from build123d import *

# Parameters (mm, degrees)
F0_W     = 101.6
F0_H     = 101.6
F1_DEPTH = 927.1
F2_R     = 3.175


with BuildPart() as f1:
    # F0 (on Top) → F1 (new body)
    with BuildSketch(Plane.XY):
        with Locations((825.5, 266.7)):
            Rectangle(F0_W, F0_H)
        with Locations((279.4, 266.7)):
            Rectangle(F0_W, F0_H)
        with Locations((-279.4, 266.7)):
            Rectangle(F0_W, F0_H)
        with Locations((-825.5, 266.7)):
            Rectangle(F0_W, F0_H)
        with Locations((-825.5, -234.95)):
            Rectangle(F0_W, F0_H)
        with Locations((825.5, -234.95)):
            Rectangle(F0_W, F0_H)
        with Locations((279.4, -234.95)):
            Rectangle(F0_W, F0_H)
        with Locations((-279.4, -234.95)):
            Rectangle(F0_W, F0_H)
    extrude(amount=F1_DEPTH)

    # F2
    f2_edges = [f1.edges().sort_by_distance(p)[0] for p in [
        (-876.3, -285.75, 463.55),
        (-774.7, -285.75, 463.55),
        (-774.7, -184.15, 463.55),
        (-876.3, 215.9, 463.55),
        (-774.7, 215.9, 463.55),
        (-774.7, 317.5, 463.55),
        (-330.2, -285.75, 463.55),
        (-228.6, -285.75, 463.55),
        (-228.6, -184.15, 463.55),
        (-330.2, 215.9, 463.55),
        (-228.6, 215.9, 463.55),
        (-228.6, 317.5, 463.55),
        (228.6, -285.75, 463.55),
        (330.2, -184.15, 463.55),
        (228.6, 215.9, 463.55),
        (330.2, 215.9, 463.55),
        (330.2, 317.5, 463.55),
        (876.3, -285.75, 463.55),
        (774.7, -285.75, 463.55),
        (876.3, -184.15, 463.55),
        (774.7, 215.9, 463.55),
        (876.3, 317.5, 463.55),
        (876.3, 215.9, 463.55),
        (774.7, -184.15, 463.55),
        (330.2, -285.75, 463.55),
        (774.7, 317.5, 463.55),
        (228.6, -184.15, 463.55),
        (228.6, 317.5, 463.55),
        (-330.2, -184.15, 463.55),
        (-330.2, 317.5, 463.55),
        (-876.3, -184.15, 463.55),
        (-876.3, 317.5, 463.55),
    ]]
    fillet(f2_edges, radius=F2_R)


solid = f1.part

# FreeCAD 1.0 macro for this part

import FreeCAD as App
import Part
import Sketcher

V = App.Vector
Q = App.Units.Quantity


def edges_at(feature, points):
    """Names of the edges that pass closest to the given points."""
    edges = feature.Shape.Edges
    near = lambda p: min(range(len(edges)), key=lambda i: edges[i].distToShape(Part.Vertex(*p))[0])
    return sorted({f"Edge{near(p) + 1}" for p in points})


def add_polygon(sketch, points):
    """Adds a closed chain of lines whose ends are joined by coincident constraints."""
    first, n = sketch.GeometryCount, len(points)
    for a, b in zip(points, points[1:] + points[:1]):
        sketch.addGeometry(Part.LineSegment(App.Vector(*a, 0), App.Vector(*b, 0)), False)
    for i in range(n):
        sketch.addConstraint(Sketcher.Constraint("Coincident", first + i, 2, first + (i + 1) % n, 1))

doc = App.newDocument("Part")
body = doc.addObject("PartDesign::Body", "Body")
body.AllowCompound = True

# Sketch on XY plane
sketch1 = body.newObject("Sketcher::SketchObject", "Sketch")
sketch1.AttachmentSupport = (doc.getObject("XY_Plane"), [""])
sketch1.MapMode = "FlatFace"
add_polygon(sketch1, [(775, 318), (775, 216), (876, 216), (876, 318)])  # lines 0-3
add_polygon(sketch1, [(229, 318), (229, 216), (330, 216), (330, 318)])  # lines 4-7
add_polygon(sketch1, [(-330, 318), (-330, 216), (-229, 216), (-229, 318)])  # lines 8-11
add_polygon(sketch1, [(-876, 318), (-876, 216), (-775, 216), (-775, 318)])  # lines 12-15
add_polygon(sketch1, [(-876, -184), (-876, -286), (-775, -286), (-775, -184)])  # lines 16-19
add_polygon(sketch1, [(775, -184), (775, -286), (876, -286), (876, -184)])  # lines 20-23
add_polygon(sketch1, [(229, -184), (229, -286), (330, -286), (330, -184)])  # lines 24-27
add_polygon(sketch1, [(-330, -184), (-330, -286), (-229, -286), (-229, -184)])  # lines 28-31
sketch1.addConstraint([
    Sketcher.Constraint("Vertical", 0),
    Sketcher.Constraint("Horizontal", 1),
    Sketcher.Constraint("Vertical", 2),
    Sketcher.Constraint("Horizontal", 3),
    Sketcher.Constraint("Vertical", 4),
    Sketcher.Constraint("Horizontal", 5),
    Sketcher.Constraint("Vertical", 6),
    Sketcher.Constraint("Horizontal", 7),
    Sketcher.Constraint("Vertical", 8),
    Sketcher.Constraint("Horizontal", 9),
    Sketcher.Constraint("Vertical", 10),
    Sketcher.Constraint("Horizontal", 11),
    Sketcher.Constraint("Vertical", 12),
    Sketcher.Constraint("Horizontal", 13),
    Sketcher.Constraint("Vertical", 14),
    Sketcher.Constraint("Horizontal", 15),
    Sketcher.Constraint("Vertical", 16),
    Sketcher.Constraint("Horizontal", 17),
    Sketcher.Constraint("Vertical", 18),
    Sketcher.Constraint("Horizontal", 19),
    Sketcher.Constraint("Vertical", 20),
    Sketcher.Constraint("Horizontal", 21),
    Sketcher.Constraint("Vertical", 22),
    Sketcher.Constraint("Horizontal", 23),
    Sketcher.Constraint("Vertical", 24),
    Sketcher.Constraint("Horizontal", 25),
    Sketcher.Constraint("Vertical", 26),
    Sketcher.Constraint("Horizontal", 27),
    Sketcher.Constraint("Vertical", 28),
    Sketcher.Constraint("Horizontal", 29),
    Sketcher.Constraint("Vertical", 30),
    Sketcher.Constraint("Horizontal", 31),
    Sketcher.Constraint("Symmetric", 5, 2, 8, 2, -2),
    Sketcher.Constraint("Symmetric", 7, 2, 10, 2, -2),
    Sketcher.Constraint("Symmetric", 1, 2, 12, 2, -2),
    Sketcher.Constraint("Symmetric", 3, 2, 14, 2, -2),
    Sketcher.Constraint("Symmetric", 17, 2, 20, 2, -2),
    Sketcher.Constraint("Symmetric", 19, 2, 22, 2, -2),
    Sketcher.Constraint("Symmetric", 25, 2, 28, 2, -2),
    Sketcher.Constraint("Symmetric", 27, 2, 30, 2, -2),
    Sketcher.Constraint("Horizontal", 1, 2, 4, 2),
    Sketcher.Constraint("Horizontal", 3, 2, 6, 2),
    Sketcher.Constraint("Horizontal", 21, 2, 24, 2),
    Sketcher.Constraint("Horizontal", 23, 2, 26, 2),
    Sketcher.Constraint("Vertical", 15, 2, 16, 2),
    Sketcher.Constraint("Vertical", 14, 2, 17, 2),
    Sketcher.Constraint("Vertical", 7, 2, 24, 2),
    Sketcher.Constraint("Vertical", 6, 2, 25, 2),
    Sketcher.Constraint("Equal", 3, 5),
    Sketcher.Constraint("Equal", 31, 0),
    Sketcher.Constraint("Equal", 14, 16),
    Sketcher.Constraint("DistanceX", 1, 1, 1, 2, Q("4 in")),
    Sketcher.Constraint("DistanceX", -1, 1, 4, 2, Q("9 in")),
    Sketcher.Constraint("DistanceX", -1, 1, 0, 2, Q("30.5 in")),
    Sketcher.Constraint("DistanceY", -1, 1, 0, 2, Q("8.5 in")),
    Sketcher.Constraint("DistanceY", 16, 2, -1, 1, Q("11.25 in")),
])
pad1 = body.newObject("PartDesign::Pad", "Pad")
pad1.Profile = sketch1
pad1.Length = Q("36.5 in")
doc.recompute()

fillet = body.newObject("PartDesign::Fillet", "Fillet")
fillet.Base = (pad1, edges_at(pad1, [
    (-876.3, -285.75, 463.55),
    (-774.7, -285.75, 463.55),
    (-774.7, -184.15, 463.55),
    (-876.3, 215.9, 463.55),
    (-774.7, 215.9, 463.55),
    (-774.7, 317.5, 463.55),
    (-330.2, -285.75, 463.55),
    (-228.6, -285.75, 463.55),
    (-228.6, -184.15, 463.55),
    (-330.2, 215.9, 463.55),
    (-228.6, 215.9, 463.55),
    (-228.6, 317.5, 463.55),
    (228.6, -285.75, 463.55),
    (330.2, -184.15, 463.55),
    (228.6, 215.9, 463.55),
    (330.2, 215.9, 463.55),
    (330.2, 317.5, 463.55),
    (876.3, -285.75, 463.55),
    (774.7, -285.75, 463.55),
    (876.3, -184.15, 463.55),
    (774.7, 215.9, 463.55),
    (876.3, 317.5, 463.55),
    (876.3, 215.9, 463.55),
    (774.7, -184.15, 463.55),
    (330.2, -285.75, 463.55),
    (774.7, 317.5, 463.55),
    (228.6, -184.15, 463.55),
    (228.6, 317.5, 463.55),
    (-330.2, -184.15, 463.55),
    (-330.2, 317.5, 463.55),
    (-876.3, -184.15, 463.55),
    (-876.3, 317.5, 463.55),
]))
fillet.Radius = Q("0.125 in")

doc.recompute()
